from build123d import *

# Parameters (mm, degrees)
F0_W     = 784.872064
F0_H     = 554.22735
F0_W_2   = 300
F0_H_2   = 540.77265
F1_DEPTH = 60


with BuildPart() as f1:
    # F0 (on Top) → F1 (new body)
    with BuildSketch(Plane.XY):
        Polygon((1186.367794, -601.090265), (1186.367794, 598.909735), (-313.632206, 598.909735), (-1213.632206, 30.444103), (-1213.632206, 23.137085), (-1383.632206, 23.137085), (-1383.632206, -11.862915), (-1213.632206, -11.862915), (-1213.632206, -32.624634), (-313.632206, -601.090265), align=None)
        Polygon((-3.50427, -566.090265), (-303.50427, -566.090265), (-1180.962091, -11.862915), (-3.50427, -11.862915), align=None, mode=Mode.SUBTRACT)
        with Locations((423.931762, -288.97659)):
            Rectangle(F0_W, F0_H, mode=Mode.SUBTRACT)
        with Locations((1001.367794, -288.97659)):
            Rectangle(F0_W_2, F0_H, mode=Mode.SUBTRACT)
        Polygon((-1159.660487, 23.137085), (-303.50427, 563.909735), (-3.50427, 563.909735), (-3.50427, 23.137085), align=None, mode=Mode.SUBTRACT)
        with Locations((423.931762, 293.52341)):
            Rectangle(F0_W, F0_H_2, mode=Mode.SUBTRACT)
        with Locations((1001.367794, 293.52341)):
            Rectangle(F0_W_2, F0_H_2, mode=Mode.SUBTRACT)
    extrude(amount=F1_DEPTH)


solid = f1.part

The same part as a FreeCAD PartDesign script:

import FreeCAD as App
import Part
import Sketcher

V = App.Vector
Q = App.Units.Quantity


def add_polygon(sketch, points):
    """Adds a closed chain of lines whose ends are joined by coincident constraints."""
    first, n = sketch.GeometryCount, len(points)
    for a, b in zip(points, points[1:] + points[:1]):
        sketch.addGeometry(Part.LineSegment(App.Vector(*a, 0), App.Vector(*b, 0)), False)
    for i in range(n):
        sketch.addConstraint(Sketcher.Constraint("Coincident", first + i, 2, first + (i + 1) % n, 1))

doc = App.newDocument("Part")
body = doc.addObject("PartDesign::Body", "Body")

sketch1 = body.newObject("Sketcher::SketchObject", "Sketch")
sketch1.AttachmentSupport = (doc.getObject("XY_Plane"), [""])
sketch1.MapMode = "FlatFace"
add_polygon(sketch1, [(1186.367794, -601.090265), (1186.367794, 598.909735), (-313.632206, 598.909735), (-1213.632206, 30.444103), (-1213.632206, 23.137085), (-1383.632206, 23.137085), (-1383.632206, -11.862915), (-1213.632206, -11.862915), (-1213.632206, -32.624634), (-313.632206, -601.090265)])
add_polygon(sketch1, [(-3.50427, -11.862915), (-3.50427, -566.090265), (-303.50427, -566.090265), (-1180.962091, -11.862915)])
add_polygon(sketch1, [(816.367794, -566.090265), (31.49573, -566.090265), (31.49573, -11.862915), (816.367794, -11.862915)])
add_polygon(sketch1, [(1151.367794, -566.090265), (851.367794, -566.090265), (851.367794, -11.862915), (1151.367794, -11.862915)])
add_polygon(sketch1, [(-3.50427, 23.137085), (-1159.660487, 23.137085), (-303.50427, 563.909735), (-3.50427, 563.909735)])
add_polygon(sketch1, [(816.367794, 23.137085), (31.49573, 23.137085), (31.49573, 563.909735), (816.367794, 563.909735)])
add_polygon(sketch1, [(1151.367794, 23.137085), (851.367794, 23.137085), (851.367794, 563.909735), (1151.367794, 563.909735)])
sketch1.addConstraint([
    Sketcher.Constraint("Vertical", 0),
    Sketcher.Constraint("Horizontal", 1),
    Sketcher.Constraint("Vertical", 3),
    Sketcher.Constraint("Horizontal", 4),
    Sketcher.Constraint("Vertical", 5),
    Sketcher.Constraint("Horizontal", 6),
    Sketcher.Constraint("Vertical", 7),
    Sketcher.Constraint("Horizontal", 9),
    Sketcher.Constraint("Vertical", 10),
    Sketcher.Constraint("Horizontal", 11),
    Sketcher.Constraint("Horizontal", 13),
    Sketcher.Constraint("Horizontal", 14),
    Sketcher.Constraint("Vertical", 15),
    Sketcher.Constraint("Horizontal", 16),
    Sketcher.Constraint("Vertical", 17),
    Sketcher.Constraint("Horizontal", 18),
    Sketcher.Constraint("Vertical", 19),
    Sketcher.Constraint("Horizontal", 20),
    Sketcher.Constraint("Vertical", 21),
    Sketcher.Constraint("Horizontal", 22),
    Sketcher.Constraint("Horizontal", 24),
    Sketcher.Constraint("Vertical", 25),
    Sketcher.Constraint("Horizontal", 26),
    Sketcher.Constraint("Vertical", 27),
    Sketcher.Constraint("Horizontal", 28),
    Sketcher.Constraint("Vertical", 29),
    Sketcher.Constraint("Horizontal", 30),
    Sketcher.Constraint("Vertical", 31),
    Sketcher.Constraint("Horizontal", 32),
    Sketcher.Constraint("Vertical", 33),
    Sketcher.Constraint("DistanceX", 1, 2, 1, 1, Q("1500 mm")),
    Sketcher.Constraint("DistanceX", 4, 2, 4, 1, Q("170 mm")),
    Sketcher.Constraint("DistanceX", 6, 1, 6, 2, Q("170 mm")),
    Sketcher.Constraint("DistanceX", 9, 1, 9, 2, Q("1500 mm")),
    Sketcher.Constraint("DistanceX", 11, 2, 11, 1, Q("300 mm")),
    Sketcher.Constraint("DistanceX", 18, 2, 18, 1, Q("300 mm")),
    Sketcher.Constraint("DistanceX", 24, 1, 24, 2, Q("300 mm")),
    Sketcher.Constraint("DistanceX", 30, 2, 30, 1, Q("300 mm")),
    Sketcher.Constraint("DistanceY", 0, 1, 0, 2, Q("1200 mm")),
    Sketcher.Constraint("DistanceY", 5, 2, 5, 1, Q("35 mm")),
    Sketcher.Constraint("DistanceX", 2, 2, 1, 2, Q("900 mm")),
    Sketcher.Constraint("DistanceY", 8, 2, 10, 2, Q("35 mm")),
    Sketcher.Constraint("DistanceY", 12, 2, 3, 2, Q("35 mm")),
    Sketcher.Constraint("DistanceX", 10, 2, 14, 2, Q("35 mm")),
    Sketcher.Constraint("DistanceY", 8, 2, 14, 2, Q("35 mm")),
    Sketcher.Constraint("DistanceX", 16, 2, 9, 2, Q("370 mm")),
    Sketcher.Constraint("DistanceX", 17, 2, 18, 2, Q("35 mm")),
    Sketcher.Constraint("DistanceY", 9, 2, 18, 2, Q("35 mm")),
    Sketcher.Constraint("DistanceY", 12, 2, 22, 2, Q("35 mm")),
    Sketcher.Constraint("DistanceY", 23, 2, 1, 2, Q("35 mm")),
    Sketcher.Constraint("DistanceX", 23, 2, 13, 2, Q("300 mm")),
    Sketcher.Constraint("DistanceY", 15, 2, 25, 2, Q("35 mm")),
    Sketcher.Constraint("DistanceY", 15, 2, 26, 2, Q("35 mm")),
    Sketcher.Constraint("DistanceX", 25, 2, 26, 2, Q("35 mm")),
    Sketcher.Constraint("DistanceY", 27, 2, 1, 2, Q("35 mm")),
    Sketcher.Constraint("DistanceX", 28, 2, 0, 2, Q("370 mm")),
    Sketcher.Constraint("DistanceY", 19, 2, 29, 2, Q("35 mm")),
    Sketcher.Constraint("DistanceY", 19, 2, 30, 2, Q("35 mm")),
    Sketcher.Constraint("DistanceX", 29, 2, 30, 2, Q("35 mm")),
    Sketcher.Constraint("DistanceY", 31, 2, 0, 2, Q("35 mm")),
    Sketcher.Constraint("DistanceX", 13, 1, 13, 2, Q("1177.457821 mm")),
    Sketcher.Constraint("DistanceY", 7, 2, 7, 1, Q("20.761719 mm")),
    Sketcher.Constraint("DistanceY", 10, 2, 10, 1, Q("554.22735 mm")),
    Sketcher.Constraint("DistanceX", 14, 2, 14, 1, Q("784.872064 mm")),
    Sketcher.Constraint("DistanceX", 22, 2, 22, 1, Q("1156.156217 mm")),
    Sketcher.Constraint("DistanceY", 3, 2, 3, 1, Q("7.307018 mm")),
    Sketcher.Constraint("DistanceX", 10, 2, -1, 1, Q("3.50427 mm")),
    Sketcher.Constraint("DistanceY", -1, 1, 0, 2, Q("598.909735 mm")),
])
pad1 = body.newObject("PartDesign::Pad", "Pad")
pad1.Profile = sketch1
pad1.Length = 60

doc.recompute()
